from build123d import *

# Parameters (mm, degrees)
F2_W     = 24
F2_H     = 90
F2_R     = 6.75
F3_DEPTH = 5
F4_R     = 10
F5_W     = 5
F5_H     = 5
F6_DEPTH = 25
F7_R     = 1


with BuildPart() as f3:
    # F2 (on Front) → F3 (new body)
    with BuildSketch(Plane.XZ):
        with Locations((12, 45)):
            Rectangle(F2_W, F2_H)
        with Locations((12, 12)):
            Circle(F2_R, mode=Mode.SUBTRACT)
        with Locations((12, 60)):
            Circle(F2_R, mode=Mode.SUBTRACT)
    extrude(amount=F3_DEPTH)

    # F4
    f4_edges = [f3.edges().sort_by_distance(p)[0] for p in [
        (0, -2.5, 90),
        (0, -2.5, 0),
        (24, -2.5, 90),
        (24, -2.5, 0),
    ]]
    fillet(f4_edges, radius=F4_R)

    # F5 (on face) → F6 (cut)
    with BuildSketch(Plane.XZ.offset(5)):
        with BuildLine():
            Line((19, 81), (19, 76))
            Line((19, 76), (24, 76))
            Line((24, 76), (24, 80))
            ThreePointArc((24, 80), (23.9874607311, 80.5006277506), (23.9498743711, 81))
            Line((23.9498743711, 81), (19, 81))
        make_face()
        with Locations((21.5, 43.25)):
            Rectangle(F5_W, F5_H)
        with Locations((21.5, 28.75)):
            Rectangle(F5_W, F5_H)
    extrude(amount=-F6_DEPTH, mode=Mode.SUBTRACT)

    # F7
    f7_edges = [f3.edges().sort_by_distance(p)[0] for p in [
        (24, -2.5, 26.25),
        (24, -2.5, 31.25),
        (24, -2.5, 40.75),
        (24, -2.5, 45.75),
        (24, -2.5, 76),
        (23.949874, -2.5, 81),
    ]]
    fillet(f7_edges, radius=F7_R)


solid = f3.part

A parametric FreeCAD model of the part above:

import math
import FreeCAD as App
import Part
import Sketcher

V = App.Vector
Q = App.Units.Quantity


def edges_at(feature, points):
    """Names of the edges that pass closest to the given points."""
    edges = feature.Shape.Edges
    near = lambda p: min(range(len(edges)), key=lambda i: edges[i].distToShape(Part.Vertex(*p))[0])
    return sorted({f"Edge{near(p) + 1}" for p in points})


def add_polygon(sketch, points):
    """Adds a closed chain of lines whose ends are joined by coincident constraints."""
    first, n = sketch.GeometryCount, len(points)
    for a, b in zip(points, points[1:] + points[:1]):
        sketch.addGeometry(Part.LineSegment(App.Vector(*a, 0), App.Vector(*b, 0)), False)
    for i in range(n):
        sketch.addConstraint(Sketcher.Constraint("Coincident", first + i, 2, first + (i + 1) % n, 1))

doc = App.newDocument("Part")
body = doc.addObject("PartDesign::Body", "Body")

# Sketch on XZ plane
sketch1 = body.newObject("Sketcher::SketchObject", "Sketch")
sketch1.AttachmentSupport = (doc.getObject("XZ_Plane"), [""])
sketch1.MapMode = "FlatFace"
add_polygon(sketch1, [(0, 90), (0, 0), (24, 0), (24, 90)])  # lines 0-3
sketch1.addGeometry(Part.Circle(V(12, 12, 0), V(0, 0, 1), 6.75), False)  # 4
sketch1.addGeometry(Part.Circle(V(12, 60, 0), V(0, 0, 1), 6.75), False)  # 5
sketch1.addConstraint([
    Sketcher.Constraint("Vertical", 0),
    Sketcher.Constraint("Horizontal", 1),
    Sketcher.Constraint("Vertical", 2),
    Sketcher.Constraint("Horizontal", 3),
    Sketcher.Constraint("Coincident", 0, 2, -1, 1),
    Sketcher.Constraint("Equal", 4, 5),
    Sketcher.Constraint("Vertical", 4, 3, 5, 3),
    Sketcher.Constraint("Diameter", 4, Q("13.5 mm")),
    Sketcher.Constraint("DistanceX", 1, 1, 1, 2, Q("24 mm")),
    Sketcher.Constraint("DistanceY", 0, 2, 0, 1, Q("90 mm")),
    Sketcher.Constraint("DistanceX", -1, 1, 4, 3, Q("12 mm")),
    Sketcher.Constraint("DistanceY", -1, 1, 4, 3, Q("12 mm")),
    Sketcher.Constraint("DistanceY", -1, 1, 5, 3, Q("60 mm")),
])
pad1 = body.newObject("PartDesign::Pad", "Pad")
pad1.Profile = sketch1
pad1.Length = 5
doc.recompute()

fillet = body.newObject("PartDesign::Fillet", "Fillet")
fillet.Base = (pad1, edges_at(pad1, [
    (0, -2.5, 90),
    (0, -2.5, 0),
    (24, -2.5, 90),
    (24, -2.5, 0),
]))
fillet.Radius = 10

# Sketch on XZ plane
sketch2 = body.newObject("Sketcher::SketchObject", "Sketch001")
sketch2.AttachmentSupport = (doc.getObject("XZ_Plane"), [""])
sketch2.MapMode = "FlatFace"
sketch2.AttachmentOffset = App.Placement(V(0, 0, 5), App.Rotation())
sketch2.addGeometry(Part.LineSegment(V(19, 81, 0), V(19, 76, 0)), False)  # 0
sketch2.addGeometry(Part.LineSegment(V(19, 76, 0), V(24, 76, 0)), False)  # 1
sketch2.addGeometry(Part.LineSegment(V(24, 76, 0), V(24, 80, 0)), False)  # 2
sketch2.addGeometry(Part.ArcOfCircle(Part.Circle(V(14, 80, 0), V(0, 0, 1), 10), math.radians(0), math.radians(5.73917)), False)  # 3
sketch2.addGeometry(Part.LineSegment(V(23.949874, 81, 0), V(19, 81, 0)), False)  # 4
add_polygon(sketch2, [(19, 45.75), (19, 40.75), (24, 40.75), (24, 45.75)])  # lines 5-8
add_polygon(sketch2, [(19, 31.25), (19, 26.25), (24, 26.25), (24, 31.25)])  # lines 9-12
sketch2.addConstraint([
    Sketcher.Constraint("Coincident", 0, 2, 1, 1),
    Sketcher.Constraint("Coincident", 1, 2, 2, 1),
    Sketcher.Constraint("Tangent", 2, 2, 3, 1),
    Sketcher.Constraint("Coincident", 3, 2, 4, 1),
    Sketcher.Constraint("Coincident", 4, 2, 0, 1),
    Sketcher.Constraint("Vertical", 0),
    Sketcher.Constraint("Horizontal", 1),
    Sketcher.Constraint("Vertical", 2),
    Sketcher.Constraint("Horizontal", 4),
    Sketcher.Constraint("Vertical", 5),
    Sketcher.Constraint("Horizontal", 6),
    Sketcher.Constraint("Vertical", 7),
    Sketcher.Constraint("Horizontal", 8),
    Sketcher.Constraint("Vertical", 9),
    Sketcher.Constraint("Horizontal", 10),
    Sketcher.Constraint("Vertical", 11),
    Sketcher.Constraint("Horizontal", 12),
    Sketcher.Constraint("Vertical", 4, 2, 5, 2),
    Sketcher.Constraint("Vertical", 2, 2, 6, 2),
    Sketcher.Constraint("Vertical", 8, 2, 9, 2),
    Sketcher.Constraint("Vertical", 7, 2, 10, 2),
    Sketcher.Constraint("Equal", 12, 0),
    Sketcher.Constraint("Equal", 0, 5),
    Sketcher.Constraint("Equal", 7, 9),
    Sketcher.Constraint("Radius", 3, Q("10 mm")),
    Sketcher.Constraint("DistanceX", 1, 1, 1, 2, Q("5 mm")),
    Sketcher.Constraint("DistanceY", 2, 1, 2, 2, Q("4 mm")),
    Sketcher.Constraint("DistanceX", -1, 1, 3, 3, Q("14 mm")),
    Sketcher.Constraint("DistanceY", -1, 1, 3, 3, Q("80 mm")),
    Sketcher.Constraint("DistanceY", 9, 2, 5, 2, Q("14.5 mm")),
    Sketcher.Constraint("DistanceY", -1, 1, 5, 2, Q("40.75 mm")),
])
pocket1 = body.newObject("PartDesign::Pocket", "Pocket")
pocket1.Profile = sketch2
pocket1.Length = 25
doc.recompute()

fillet2 = body.newObject("PartDesign::Fillet", "Fillet001")
fillet2.Base = (pocket1, edges_at(pocket1, [
    (24, -2.5, 26.25),
    (24, -2.5, 31.25),
    (24, -2.5, 40.75),
    (24, -2.5, 45.75),
    (24, -2.5, 76),
    (23.95, -2.5, 81),
]))
fillet2.Radius = 1

doc.recompute()
